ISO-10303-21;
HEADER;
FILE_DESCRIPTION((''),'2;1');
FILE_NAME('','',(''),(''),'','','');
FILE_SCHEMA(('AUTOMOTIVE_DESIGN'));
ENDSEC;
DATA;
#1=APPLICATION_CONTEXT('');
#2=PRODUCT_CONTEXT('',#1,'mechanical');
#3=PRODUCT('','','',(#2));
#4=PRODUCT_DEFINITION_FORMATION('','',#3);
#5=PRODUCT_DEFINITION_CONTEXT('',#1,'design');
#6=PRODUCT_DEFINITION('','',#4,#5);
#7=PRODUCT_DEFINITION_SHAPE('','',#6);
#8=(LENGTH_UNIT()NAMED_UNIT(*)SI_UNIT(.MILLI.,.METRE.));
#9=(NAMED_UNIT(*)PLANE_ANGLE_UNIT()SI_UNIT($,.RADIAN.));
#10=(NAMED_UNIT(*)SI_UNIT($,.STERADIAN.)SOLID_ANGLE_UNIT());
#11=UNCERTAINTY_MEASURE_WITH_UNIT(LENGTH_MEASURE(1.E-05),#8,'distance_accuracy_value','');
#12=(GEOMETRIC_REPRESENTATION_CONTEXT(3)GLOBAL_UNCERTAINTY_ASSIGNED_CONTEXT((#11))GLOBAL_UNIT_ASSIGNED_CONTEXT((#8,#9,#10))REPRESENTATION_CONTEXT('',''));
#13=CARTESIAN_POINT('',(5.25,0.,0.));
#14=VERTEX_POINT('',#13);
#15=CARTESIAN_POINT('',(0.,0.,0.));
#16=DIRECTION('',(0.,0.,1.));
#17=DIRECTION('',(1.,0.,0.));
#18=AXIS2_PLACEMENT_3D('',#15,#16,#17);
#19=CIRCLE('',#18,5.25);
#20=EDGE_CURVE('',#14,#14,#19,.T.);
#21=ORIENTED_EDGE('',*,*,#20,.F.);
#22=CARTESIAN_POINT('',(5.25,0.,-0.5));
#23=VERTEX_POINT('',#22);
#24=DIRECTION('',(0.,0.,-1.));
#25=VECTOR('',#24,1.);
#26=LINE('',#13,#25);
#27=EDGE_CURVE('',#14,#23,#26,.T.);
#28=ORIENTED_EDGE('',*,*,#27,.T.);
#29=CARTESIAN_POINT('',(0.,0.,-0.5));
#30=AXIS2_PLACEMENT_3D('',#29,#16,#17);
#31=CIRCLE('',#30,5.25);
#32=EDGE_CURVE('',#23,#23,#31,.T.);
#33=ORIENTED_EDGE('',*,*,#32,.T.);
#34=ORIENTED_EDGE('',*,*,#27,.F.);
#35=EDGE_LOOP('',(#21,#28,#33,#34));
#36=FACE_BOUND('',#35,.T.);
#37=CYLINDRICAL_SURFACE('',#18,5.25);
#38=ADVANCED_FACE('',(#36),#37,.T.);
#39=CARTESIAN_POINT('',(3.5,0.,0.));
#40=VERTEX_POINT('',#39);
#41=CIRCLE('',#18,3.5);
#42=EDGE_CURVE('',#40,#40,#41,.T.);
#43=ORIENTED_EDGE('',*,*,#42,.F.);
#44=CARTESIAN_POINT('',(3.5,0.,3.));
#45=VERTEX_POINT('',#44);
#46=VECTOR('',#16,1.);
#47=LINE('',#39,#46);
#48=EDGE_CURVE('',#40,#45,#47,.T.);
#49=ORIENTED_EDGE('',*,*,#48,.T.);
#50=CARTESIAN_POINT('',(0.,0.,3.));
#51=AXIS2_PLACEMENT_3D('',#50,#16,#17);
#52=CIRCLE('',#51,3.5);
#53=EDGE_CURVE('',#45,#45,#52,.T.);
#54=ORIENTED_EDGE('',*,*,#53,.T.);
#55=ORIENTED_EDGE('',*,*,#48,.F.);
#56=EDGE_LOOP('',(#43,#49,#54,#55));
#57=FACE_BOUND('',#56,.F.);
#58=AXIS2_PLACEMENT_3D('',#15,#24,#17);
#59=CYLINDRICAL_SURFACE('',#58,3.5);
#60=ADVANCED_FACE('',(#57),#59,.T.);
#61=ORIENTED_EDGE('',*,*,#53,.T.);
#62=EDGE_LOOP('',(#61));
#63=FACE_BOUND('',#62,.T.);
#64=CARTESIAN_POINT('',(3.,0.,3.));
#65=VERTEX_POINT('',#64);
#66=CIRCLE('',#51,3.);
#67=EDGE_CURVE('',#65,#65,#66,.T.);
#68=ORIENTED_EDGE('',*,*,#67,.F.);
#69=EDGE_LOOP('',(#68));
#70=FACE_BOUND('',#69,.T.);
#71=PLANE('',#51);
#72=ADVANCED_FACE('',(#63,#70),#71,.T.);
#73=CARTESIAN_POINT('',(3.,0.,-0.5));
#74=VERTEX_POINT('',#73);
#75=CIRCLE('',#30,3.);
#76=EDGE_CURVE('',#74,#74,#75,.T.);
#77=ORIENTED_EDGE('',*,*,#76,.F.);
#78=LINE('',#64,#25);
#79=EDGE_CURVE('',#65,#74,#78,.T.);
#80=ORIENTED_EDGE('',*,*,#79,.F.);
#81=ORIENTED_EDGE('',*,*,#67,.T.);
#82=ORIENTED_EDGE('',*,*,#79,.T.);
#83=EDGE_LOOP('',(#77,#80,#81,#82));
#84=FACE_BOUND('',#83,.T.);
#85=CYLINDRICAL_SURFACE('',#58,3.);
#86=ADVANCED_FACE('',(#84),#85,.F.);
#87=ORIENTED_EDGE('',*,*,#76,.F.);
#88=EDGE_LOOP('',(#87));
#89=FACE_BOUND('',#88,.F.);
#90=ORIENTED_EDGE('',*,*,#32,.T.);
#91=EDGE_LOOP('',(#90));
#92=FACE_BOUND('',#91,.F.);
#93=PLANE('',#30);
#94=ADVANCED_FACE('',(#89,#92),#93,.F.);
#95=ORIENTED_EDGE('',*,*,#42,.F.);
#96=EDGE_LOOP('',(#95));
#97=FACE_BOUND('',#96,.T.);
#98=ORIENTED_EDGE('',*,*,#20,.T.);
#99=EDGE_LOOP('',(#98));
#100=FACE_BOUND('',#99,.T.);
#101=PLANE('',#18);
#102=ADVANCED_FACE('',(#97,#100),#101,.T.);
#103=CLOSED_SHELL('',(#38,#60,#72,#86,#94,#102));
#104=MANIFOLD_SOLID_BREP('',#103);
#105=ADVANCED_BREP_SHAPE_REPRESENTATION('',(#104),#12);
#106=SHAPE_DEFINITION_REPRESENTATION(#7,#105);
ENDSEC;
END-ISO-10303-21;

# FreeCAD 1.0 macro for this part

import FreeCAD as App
import Part
import Sketcher

V = App.Vector
Q = App.Units.Quantity

doc = App.newDocument("Part")
body = doc.addObject("PartDesign::Body", "Body")

# Sketch on XY plane
sketch1 = body.newObject("Sketcher::SketchObject", "Sketch")
sketch1.AttachmentSupport = (doc.getObject("XY_Plane"), [""])
sketch1.MapMode = "FlatFace"
sketch1.addGeometry([
    Part.Circle(V(0, 0, 0), V(0, 0, 1), 3.5),
    Part.Circle(V(0, 0, 0), V(0, 0, 1), 3),
], False)
sketch1.addConstraint([
    Sketcher.Constraint("Coincident", 0, 3, -1, 1),
    Sketcher.Constraint("Coincident", 1, 3, -1, 1),
    Sketcher.Constraint("Diameter", 0, Q("7 mm")),
    Sketcher.Constraint("Diameter", 1, Q("6 mm")),
])
pad1 = body.newObject("PartDesign::Pad", "Pad")
pad1.Profile = sketch1
pad1.Length = 3

# Sketch on XY plane
sketch2 = body.newObject("Sketcher::SketchObject", "Sketch001")
sketch2.AttachmentSupport = (doc.getObject("XY_Plane"), [""])
sketch2.MapMode = "FlatFace"
sketch2.addGeometry([
    Part.Circle(V(0, 0, 0), V(0, 0, 1), 5.2),
    Part.Circle(V(0, 0, 0), V(0, 0, 1), 3),
], False)
sketch2.addConstraint([
    Sketcher.Constraint("Coincident", 0, 3, -1, 1),
    Sketcher.Constraint("Coincident", 1, 3, -1, 1),
    Sketcher.Constraint("Diameter", 1, Q("6 mm")),
    Sketcher.Constraint("Diameter", 0, Q("10.5 mm")),
])
pad2 = body.newObject("PartDesign::Pad", "Pad001")
pad2.Profile = sketch2
pad2.Length = 0.5
pad2.Reversed = True

doc.recompute()
